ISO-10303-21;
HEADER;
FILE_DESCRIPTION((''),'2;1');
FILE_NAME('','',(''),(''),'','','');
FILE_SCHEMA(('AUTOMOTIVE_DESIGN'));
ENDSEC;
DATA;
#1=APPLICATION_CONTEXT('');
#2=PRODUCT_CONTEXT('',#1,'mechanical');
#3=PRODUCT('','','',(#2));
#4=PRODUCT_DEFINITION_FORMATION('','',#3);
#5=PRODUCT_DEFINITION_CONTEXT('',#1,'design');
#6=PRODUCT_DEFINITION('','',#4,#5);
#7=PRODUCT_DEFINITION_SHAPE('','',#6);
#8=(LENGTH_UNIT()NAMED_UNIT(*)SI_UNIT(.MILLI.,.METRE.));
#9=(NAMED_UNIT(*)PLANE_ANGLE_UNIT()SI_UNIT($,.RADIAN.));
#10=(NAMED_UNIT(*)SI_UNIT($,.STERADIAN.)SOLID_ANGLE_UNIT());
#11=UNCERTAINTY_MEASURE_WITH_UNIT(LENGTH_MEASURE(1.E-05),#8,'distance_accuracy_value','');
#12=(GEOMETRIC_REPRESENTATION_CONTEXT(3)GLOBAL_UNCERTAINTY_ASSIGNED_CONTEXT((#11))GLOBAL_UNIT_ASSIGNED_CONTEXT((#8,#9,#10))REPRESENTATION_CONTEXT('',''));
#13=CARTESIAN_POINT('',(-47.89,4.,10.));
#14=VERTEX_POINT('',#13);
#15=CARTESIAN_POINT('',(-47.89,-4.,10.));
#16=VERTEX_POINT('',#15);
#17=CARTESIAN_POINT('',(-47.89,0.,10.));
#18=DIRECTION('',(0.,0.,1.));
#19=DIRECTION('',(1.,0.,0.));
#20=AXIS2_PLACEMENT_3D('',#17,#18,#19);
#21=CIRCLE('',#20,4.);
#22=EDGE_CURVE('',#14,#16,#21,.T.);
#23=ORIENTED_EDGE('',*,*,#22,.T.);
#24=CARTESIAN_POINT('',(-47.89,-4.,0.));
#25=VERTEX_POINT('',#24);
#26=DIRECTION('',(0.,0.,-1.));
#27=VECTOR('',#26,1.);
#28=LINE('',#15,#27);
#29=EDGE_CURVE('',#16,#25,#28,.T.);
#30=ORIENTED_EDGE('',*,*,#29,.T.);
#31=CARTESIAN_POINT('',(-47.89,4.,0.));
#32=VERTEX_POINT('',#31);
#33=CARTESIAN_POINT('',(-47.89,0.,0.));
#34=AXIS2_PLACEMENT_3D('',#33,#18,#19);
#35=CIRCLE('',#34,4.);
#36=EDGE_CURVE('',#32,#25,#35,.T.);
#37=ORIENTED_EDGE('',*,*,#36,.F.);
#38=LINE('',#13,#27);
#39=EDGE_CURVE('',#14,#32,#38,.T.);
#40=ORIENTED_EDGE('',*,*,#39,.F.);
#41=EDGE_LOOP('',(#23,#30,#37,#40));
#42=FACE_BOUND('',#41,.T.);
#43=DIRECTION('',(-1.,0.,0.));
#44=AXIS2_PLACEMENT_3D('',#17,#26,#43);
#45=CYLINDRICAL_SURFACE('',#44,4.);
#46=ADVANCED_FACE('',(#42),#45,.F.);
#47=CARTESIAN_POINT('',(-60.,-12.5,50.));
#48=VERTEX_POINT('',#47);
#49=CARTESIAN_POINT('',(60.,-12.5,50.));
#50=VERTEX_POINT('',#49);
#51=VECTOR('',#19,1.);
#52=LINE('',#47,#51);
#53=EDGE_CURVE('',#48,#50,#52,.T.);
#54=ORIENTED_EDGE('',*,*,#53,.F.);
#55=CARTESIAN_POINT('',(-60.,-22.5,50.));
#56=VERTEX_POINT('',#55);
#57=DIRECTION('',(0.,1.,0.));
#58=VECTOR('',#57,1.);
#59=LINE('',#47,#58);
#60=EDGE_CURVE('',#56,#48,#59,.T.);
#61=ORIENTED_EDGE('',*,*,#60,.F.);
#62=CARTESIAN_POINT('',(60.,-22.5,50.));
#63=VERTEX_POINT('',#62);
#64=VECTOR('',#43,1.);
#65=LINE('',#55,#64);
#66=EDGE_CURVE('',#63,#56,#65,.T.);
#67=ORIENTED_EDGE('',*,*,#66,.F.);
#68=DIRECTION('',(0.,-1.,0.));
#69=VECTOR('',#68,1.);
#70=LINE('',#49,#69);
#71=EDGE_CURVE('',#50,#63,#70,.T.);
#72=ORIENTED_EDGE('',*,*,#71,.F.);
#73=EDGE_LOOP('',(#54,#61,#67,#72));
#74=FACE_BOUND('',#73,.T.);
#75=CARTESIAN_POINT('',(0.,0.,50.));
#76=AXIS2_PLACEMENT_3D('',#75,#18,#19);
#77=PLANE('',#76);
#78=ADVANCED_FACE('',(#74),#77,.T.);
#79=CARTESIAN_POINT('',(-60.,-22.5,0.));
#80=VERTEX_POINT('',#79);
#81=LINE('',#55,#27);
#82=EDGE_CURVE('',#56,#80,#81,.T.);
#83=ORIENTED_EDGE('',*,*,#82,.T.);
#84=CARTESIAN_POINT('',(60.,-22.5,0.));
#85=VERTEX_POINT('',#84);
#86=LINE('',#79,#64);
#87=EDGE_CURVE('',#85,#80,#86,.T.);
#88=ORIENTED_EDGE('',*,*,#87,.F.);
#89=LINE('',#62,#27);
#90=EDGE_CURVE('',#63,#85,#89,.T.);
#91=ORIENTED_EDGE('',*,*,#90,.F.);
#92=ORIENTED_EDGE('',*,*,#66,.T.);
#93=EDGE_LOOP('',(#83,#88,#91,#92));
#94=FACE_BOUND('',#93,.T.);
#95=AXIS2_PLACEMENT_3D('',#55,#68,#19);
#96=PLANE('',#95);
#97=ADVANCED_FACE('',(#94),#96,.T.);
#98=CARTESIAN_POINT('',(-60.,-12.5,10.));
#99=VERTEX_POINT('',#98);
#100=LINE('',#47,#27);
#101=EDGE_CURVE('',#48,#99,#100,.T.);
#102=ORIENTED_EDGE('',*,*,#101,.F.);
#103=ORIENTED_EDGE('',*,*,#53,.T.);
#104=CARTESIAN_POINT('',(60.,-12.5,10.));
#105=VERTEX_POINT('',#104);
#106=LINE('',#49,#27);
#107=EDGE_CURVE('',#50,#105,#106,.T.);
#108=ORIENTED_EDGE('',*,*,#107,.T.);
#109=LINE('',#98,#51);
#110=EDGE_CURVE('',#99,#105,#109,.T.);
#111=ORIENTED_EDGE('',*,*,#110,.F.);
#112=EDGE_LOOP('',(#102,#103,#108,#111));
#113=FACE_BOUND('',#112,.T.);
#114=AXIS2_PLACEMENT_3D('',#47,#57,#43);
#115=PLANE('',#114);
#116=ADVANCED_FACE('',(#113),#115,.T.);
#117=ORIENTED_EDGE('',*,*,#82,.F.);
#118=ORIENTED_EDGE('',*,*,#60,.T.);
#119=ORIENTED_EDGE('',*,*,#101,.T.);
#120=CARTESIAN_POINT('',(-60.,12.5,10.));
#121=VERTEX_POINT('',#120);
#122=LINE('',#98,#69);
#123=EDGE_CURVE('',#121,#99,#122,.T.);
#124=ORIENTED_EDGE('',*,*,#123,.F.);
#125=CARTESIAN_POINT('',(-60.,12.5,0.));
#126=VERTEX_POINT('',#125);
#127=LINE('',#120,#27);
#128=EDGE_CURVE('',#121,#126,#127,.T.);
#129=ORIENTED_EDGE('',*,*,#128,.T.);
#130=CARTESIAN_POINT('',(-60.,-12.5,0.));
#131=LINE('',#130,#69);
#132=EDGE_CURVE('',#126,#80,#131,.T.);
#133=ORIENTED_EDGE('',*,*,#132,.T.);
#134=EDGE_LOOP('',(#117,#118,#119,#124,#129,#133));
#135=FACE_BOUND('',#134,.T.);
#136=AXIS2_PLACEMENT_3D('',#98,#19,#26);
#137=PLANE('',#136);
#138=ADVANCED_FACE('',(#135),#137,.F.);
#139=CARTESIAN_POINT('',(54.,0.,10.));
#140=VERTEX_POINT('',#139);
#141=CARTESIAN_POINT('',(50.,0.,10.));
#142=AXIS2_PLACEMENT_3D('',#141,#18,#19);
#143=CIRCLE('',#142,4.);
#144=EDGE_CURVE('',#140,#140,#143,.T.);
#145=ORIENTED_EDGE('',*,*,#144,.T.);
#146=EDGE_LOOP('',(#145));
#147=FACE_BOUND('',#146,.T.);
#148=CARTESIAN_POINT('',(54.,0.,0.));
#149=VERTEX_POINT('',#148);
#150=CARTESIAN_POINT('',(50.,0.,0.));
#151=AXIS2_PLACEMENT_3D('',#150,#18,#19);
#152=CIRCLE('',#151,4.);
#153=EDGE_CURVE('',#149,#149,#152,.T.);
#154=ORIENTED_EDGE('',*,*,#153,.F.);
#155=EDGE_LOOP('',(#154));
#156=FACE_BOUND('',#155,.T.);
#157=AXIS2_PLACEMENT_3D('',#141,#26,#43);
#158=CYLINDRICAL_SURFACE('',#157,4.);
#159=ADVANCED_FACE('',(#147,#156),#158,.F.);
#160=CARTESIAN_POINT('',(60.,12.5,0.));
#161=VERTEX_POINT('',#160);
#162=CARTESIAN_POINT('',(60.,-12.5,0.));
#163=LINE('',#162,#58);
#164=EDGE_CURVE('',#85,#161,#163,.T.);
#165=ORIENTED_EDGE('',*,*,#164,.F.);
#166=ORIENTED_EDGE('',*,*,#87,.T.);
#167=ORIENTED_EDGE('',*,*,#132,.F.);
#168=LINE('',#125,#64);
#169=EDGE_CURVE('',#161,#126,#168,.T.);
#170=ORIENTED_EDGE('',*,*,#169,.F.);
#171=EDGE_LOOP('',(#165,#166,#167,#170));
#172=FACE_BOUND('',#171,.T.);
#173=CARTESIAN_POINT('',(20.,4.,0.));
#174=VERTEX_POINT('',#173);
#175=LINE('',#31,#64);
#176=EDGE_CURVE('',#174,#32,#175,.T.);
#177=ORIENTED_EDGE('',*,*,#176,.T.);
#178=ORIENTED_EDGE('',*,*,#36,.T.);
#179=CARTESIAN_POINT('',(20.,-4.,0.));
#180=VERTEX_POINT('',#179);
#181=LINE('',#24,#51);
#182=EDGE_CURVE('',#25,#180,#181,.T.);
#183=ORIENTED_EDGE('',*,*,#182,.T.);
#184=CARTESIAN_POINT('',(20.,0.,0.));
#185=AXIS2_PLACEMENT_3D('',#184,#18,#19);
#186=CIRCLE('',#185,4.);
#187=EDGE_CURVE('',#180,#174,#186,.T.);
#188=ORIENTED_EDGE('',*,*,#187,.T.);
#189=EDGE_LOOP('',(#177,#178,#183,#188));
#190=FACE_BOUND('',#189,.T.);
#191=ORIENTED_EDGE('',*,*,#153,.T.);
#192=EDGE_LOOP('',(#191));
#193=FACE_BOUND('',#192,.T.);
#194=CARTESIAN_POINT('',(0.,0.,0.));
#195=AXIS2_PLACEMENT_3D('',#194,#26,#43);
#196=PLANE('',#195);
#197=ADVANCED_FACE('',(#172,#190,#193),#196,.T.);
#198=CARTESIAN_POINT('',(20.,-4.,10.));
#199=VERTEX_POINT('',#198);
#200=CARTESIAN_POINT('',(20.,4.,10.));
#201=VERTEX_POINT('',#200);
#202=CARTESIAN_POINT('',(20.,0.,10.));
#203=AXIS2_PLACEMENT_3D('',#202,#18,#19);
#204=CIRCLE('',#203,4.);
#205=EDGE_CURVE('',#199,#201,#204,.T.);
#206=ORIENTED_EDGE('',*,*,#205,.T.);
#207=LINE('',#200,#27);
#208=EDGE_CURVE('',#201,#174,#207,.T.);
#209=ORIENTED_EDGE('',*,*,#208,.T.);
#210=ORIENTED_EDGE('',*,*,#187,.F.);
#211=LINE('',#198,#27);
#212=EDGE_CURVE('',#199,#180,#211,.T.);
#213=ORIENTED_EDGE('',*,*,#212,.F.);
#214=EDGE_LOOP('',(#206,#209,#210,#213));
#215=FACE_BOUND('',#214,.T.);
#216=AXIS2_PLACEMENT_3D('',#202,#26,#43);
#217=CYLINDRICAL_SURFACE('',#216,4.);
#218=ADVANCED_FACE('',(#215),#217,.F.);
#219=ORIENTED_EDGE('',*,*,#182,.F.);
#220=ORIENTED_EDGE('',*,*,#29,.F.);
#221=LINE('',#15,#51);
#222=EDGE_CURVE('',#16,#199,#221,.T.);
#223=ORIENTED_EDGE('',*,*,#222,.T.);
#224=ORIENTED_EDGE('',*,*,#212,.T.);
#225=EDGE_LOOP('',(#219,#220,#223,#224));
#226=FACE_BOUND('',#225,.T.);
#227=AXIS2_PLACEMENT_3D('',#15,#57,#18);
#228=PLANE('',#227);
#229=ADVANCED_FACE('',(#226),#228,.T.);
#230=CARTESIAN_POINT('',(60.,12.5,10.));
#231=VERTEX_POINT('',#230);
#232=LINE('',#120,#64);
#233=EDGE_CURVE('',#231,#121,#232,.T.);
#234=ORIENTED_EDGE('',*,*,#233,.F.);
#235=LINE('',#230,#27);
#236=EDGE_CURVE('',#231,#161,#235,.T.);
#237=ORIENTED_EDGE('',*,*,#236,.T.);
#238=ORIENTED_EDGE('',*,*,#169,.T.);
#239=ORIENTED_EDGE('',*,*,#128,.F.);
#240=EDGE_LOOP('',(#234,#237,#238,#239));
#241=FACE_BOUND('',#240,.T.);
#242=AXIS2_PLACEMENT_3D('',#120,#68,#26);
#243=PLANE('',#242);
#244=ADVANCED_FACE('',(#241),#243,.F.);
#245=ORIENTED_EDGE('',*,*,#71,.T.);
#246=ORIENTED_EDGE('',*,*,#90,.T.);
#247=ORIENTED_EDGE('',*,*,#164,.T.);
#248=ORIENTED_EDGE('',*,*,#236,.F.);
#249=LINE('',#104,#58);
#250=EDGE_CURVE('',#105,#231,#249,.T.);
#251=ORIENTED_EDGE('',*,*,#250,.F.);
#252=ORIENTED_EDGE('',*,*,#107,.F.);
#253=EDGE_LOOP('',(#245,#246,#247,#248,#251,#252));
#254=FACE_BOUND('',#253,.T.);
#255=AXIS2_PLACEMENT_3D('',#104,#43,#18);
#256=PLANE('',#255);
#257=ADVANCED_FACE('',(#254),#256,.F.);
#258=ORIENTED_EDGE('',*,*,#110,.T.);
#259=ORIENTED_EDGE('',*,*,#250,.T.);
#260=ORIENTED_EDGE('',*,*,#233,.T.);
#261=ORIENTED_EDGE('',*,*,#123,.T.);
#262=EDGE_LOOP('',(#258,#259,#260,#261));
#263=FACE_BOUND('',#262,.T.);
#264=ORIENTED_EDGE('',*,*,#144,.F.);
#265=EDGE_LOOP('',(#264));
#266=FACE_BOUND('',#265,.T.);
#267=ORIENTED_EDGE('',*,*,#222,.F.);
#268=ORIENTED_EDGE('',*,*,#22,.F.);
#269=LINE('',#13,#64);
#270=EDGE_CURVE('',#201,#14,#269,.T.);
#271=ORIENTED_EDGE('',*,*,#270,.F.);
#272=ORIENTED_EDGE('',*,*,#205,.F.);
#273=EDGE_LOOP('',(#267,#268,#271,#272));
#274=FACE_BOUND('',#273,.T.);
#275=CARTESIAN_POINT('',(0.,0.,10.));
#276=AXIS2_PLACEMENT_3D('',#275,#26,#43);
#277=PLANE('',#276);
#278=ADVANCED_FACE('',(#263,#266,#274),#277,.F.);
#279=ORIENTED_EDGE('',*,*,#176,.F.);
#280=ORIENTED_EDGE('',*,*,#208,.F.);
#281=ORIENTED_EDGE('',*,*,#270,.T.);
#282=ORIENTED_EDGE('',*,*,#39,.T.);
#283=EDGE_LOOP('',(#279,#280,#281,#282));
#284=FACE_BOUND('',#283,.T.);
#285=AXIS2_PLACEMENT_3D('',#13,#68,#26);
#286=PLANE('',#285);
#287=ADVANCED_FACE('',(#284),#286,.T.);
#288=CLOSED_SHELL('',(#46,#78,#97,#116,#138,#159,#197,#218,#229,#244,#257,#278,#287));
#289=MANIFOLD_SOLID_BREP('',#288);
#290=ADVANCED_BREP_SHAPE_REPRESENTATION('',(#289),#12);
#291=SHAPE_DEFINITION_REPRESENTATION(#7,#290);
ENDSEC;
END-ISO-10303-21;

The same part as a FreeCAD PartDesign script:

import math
import FreeCAD as App
import Part
import Sketcher
Q = App.Units.Quantity

doc = App.newDocument("Part")
body = doc.addObject("PartDesign::Body", "Body")

sketch1 = doc.addObject("Sketcher::SketchObject", "Sketch")
body.addObject(sketch1)
sketch1.AttachmentSupport = (doc.XY_Plane, [""])
sketch1.MapMode = "FlatFace"
sketch1.addGeometry(Part.LineSegment(App.Vector(-60, 12.5, 0), App.Vector(-60, -12.5, 0)), False)
sketch1.addGeometry(Part.LineSegment(App.Vector(-60, -12.5, 0), App.Vector(60, -12.5, 0)), False)
sketch1.addGeometry(Part.LineSegment(App.Vector(60, -12.5, 0), App.Vector(60, 12.5, 0)), False)
sketch1.addGeometry(Part.LineSegment(App.Vector(60, 12.5, 0), App.Vector(-60, 12.5, 0)), False)
sketch1.addGeometry(Part.ArcOfCircle(Part.Circle(App.Vector(-47.89, 0, 0), App.Vector(0, 0, 1), 4), math.radians(90), math.radians(270)), False)
sketch1.addGeometry(Part.LineSegment(App.Vector(-47.89, 4, 0), App.Vector(20, 4, 0)), False)
sketch1.addGeometry(Part.ArcOfCircle(Part.Circle(App.Vector(20, 0, 0), App.Vector(0, 0, 1), 4), math.radians(-90), math.radians(90)), False)
sketch1.addGeometry(Part.LineSegment(App.Vector(20, -4, 0), App.Vector(-47.89, -4, 0)), False)
sketch1.addGeometry(Part.Circle(App.Vector(50, 0, 0), App.Vector(0, 0, 1), 4), False)
sketch1.addConstraint(Sketcher.Constraint("Coincident", 0, 2, 1, 1))
sketch1.addConstraint(Sketcher.Constraint("Coincident", 1, 2, 2, 1))
sketch1.addConstraint(Sketcher.Constraint("Coincident", 2, 2, 3, 1))
sketch1.addConstraint(Sketcher.Constraint("Coincident", 3, 2, 0, 1))
sketch1.addConstraint(Sketcher.Constraint("Tangent", 4, 1, 5, 1))
sketch1.addConstraint(Sketcher.Constraint("Tangent", 5, 2, 6, 2))
sketch1.addConstraint(Sketcher.Constraint("Tangent", 6, 1, 7, 1))
sketch1.addConstraint(Sketcher.Constraint("Tangent", 7, 2, 4, 2))
sketch1.addConstraint(Sketcher.Constraint("Vertical", 0))
sketch1.addConstraint(Sketcher.Constraint("Horizontal", 1))
sketch1.addConstraint(Sketcher.Constraint("Vertical", 2))
sketch1.addConstraint(Sketcher.Constraint("Horizontal", 3))
sketch1.addConstraint(Sketcher.Constraint("Horizontal", 5))
sketch1.addConstraint(Sketcher.Constraint("Horizontal", 7))
sketch1.addConstraint(Sketcher.Constraint("Equal", 6, 8))
sketch1.addConstraint(Sketcher.Constraint("Symmetric", 0, 2, 2, 2, -1, 1))
sketch1.addConstraint(Sketcher.Constraint("PointOnObject", 4, 3, -1))
sketch1.addConstraint(Sketcher.Constraint("PointOnObject", 8, 3, -1))
sketch1.addConstraint(Sketcher.Constraint("Diameter", 8, Q("8 mm")))
sketch1.addConstraint(Sketcher.Constraint("DistanceX", 1, 1, 1, 2, Q("120 mm")))
sketch1.addConstraint(Sketcher.Constraint("DistanceY", 0, 2, 0, 1, Q("25 mm")))
sketch1.addConstraint(Sketcher.Constraint("DistanceX", -1, 1, 6, 3, Q("20 mm")))
sketch1.addConstraint(Sketcher.Constraint("DistanceX", -1, 1, 8, 3, Q("50 mm")))
sketch1.addConstraint(Sketcher.Constraint("DistanceX", 5, 1, 5, 2, Q("67.89 mm")))
pad1 = doc.addObject("PartDesign::Pad", "Pad")
body.addObject(pad1)
pad1.Profile = sketch1
pad1.Length = 10

sketch2 = doc.addObject("Sketcher::SketchObject", "Sketch001")
body.addObject(sketch2)
sketch2.AttachmentSupport = (doc.XY_Plane, [""])
sketch2.MapMode = "FlatFace"
sketch2.addGeometry(Part.LineSegment(App.Vector(60, -12.5, 0), App.Vector(60, -22.5, 0)), False)
sketch2.addGeometry(Part.LineSegment(App.Vector(60, -22.5, 0), App.Vector(-60, -22.5, 0)), False)
sketch2.addGeometry(Part.LineSegment(App.Vector(-60, -22.5, 0), App.Vector(-60, -12.5, 0)), False)
sketch2.addGeometry(Part.LineSegment(App.Vector(-60, -12.5, 0), App.Vector(60, -12.5, 0)), False)
sketch2.addConstraint(Sketcher.Constraint("Coincident", 0, 2, 1, 1))
sketch2.addConstraint(Sketcher.Constraint("Coincident", 1, 2, 2, 1))
sketch2.addConstraint(Sketcher.Constraint("Coincident", 2, 2, 3, 1))
sketch2.addConstraint(Sketcher.Constraint("Coincident", 3, 2, 0, 1))
sketch2.addConstraint(Sketcher.Constraint("Vertical", 0))
sketch2.addConstraint(Sketcher.Constraint("Horizontal", 1))
sketch2.addConstraint(Sketcher.Constraint("Vertical", 2))
sketch2.addConstraint(Sketcher.Constraint("Horizontal", 3))
sketch2.addConstraint(Sketcher.Constraint("DistanceX", 1, 2, 1, 1, Q("120 mm")))
sketch2.addConstraint(Sketcher.Constraint("DistanceY", 0, 2, 0, 1, Q("10 mm")))
sketch2.addConstraint(Sketcher.Constraint("DistanceX", -1, 1, 0, 2, Q("60 mm")))
sketch2.addConstraint(Sketcher.Constraint("DistanceY", 0, 2, -1, 1, Q("22.5 mm")))
pad2 = doc.addObject("PartDesign::Pad", "Pad001")
body.addObject(pad2)
pad2.Profile = sketch2
pad2.Length = 50

doc.recompute()
